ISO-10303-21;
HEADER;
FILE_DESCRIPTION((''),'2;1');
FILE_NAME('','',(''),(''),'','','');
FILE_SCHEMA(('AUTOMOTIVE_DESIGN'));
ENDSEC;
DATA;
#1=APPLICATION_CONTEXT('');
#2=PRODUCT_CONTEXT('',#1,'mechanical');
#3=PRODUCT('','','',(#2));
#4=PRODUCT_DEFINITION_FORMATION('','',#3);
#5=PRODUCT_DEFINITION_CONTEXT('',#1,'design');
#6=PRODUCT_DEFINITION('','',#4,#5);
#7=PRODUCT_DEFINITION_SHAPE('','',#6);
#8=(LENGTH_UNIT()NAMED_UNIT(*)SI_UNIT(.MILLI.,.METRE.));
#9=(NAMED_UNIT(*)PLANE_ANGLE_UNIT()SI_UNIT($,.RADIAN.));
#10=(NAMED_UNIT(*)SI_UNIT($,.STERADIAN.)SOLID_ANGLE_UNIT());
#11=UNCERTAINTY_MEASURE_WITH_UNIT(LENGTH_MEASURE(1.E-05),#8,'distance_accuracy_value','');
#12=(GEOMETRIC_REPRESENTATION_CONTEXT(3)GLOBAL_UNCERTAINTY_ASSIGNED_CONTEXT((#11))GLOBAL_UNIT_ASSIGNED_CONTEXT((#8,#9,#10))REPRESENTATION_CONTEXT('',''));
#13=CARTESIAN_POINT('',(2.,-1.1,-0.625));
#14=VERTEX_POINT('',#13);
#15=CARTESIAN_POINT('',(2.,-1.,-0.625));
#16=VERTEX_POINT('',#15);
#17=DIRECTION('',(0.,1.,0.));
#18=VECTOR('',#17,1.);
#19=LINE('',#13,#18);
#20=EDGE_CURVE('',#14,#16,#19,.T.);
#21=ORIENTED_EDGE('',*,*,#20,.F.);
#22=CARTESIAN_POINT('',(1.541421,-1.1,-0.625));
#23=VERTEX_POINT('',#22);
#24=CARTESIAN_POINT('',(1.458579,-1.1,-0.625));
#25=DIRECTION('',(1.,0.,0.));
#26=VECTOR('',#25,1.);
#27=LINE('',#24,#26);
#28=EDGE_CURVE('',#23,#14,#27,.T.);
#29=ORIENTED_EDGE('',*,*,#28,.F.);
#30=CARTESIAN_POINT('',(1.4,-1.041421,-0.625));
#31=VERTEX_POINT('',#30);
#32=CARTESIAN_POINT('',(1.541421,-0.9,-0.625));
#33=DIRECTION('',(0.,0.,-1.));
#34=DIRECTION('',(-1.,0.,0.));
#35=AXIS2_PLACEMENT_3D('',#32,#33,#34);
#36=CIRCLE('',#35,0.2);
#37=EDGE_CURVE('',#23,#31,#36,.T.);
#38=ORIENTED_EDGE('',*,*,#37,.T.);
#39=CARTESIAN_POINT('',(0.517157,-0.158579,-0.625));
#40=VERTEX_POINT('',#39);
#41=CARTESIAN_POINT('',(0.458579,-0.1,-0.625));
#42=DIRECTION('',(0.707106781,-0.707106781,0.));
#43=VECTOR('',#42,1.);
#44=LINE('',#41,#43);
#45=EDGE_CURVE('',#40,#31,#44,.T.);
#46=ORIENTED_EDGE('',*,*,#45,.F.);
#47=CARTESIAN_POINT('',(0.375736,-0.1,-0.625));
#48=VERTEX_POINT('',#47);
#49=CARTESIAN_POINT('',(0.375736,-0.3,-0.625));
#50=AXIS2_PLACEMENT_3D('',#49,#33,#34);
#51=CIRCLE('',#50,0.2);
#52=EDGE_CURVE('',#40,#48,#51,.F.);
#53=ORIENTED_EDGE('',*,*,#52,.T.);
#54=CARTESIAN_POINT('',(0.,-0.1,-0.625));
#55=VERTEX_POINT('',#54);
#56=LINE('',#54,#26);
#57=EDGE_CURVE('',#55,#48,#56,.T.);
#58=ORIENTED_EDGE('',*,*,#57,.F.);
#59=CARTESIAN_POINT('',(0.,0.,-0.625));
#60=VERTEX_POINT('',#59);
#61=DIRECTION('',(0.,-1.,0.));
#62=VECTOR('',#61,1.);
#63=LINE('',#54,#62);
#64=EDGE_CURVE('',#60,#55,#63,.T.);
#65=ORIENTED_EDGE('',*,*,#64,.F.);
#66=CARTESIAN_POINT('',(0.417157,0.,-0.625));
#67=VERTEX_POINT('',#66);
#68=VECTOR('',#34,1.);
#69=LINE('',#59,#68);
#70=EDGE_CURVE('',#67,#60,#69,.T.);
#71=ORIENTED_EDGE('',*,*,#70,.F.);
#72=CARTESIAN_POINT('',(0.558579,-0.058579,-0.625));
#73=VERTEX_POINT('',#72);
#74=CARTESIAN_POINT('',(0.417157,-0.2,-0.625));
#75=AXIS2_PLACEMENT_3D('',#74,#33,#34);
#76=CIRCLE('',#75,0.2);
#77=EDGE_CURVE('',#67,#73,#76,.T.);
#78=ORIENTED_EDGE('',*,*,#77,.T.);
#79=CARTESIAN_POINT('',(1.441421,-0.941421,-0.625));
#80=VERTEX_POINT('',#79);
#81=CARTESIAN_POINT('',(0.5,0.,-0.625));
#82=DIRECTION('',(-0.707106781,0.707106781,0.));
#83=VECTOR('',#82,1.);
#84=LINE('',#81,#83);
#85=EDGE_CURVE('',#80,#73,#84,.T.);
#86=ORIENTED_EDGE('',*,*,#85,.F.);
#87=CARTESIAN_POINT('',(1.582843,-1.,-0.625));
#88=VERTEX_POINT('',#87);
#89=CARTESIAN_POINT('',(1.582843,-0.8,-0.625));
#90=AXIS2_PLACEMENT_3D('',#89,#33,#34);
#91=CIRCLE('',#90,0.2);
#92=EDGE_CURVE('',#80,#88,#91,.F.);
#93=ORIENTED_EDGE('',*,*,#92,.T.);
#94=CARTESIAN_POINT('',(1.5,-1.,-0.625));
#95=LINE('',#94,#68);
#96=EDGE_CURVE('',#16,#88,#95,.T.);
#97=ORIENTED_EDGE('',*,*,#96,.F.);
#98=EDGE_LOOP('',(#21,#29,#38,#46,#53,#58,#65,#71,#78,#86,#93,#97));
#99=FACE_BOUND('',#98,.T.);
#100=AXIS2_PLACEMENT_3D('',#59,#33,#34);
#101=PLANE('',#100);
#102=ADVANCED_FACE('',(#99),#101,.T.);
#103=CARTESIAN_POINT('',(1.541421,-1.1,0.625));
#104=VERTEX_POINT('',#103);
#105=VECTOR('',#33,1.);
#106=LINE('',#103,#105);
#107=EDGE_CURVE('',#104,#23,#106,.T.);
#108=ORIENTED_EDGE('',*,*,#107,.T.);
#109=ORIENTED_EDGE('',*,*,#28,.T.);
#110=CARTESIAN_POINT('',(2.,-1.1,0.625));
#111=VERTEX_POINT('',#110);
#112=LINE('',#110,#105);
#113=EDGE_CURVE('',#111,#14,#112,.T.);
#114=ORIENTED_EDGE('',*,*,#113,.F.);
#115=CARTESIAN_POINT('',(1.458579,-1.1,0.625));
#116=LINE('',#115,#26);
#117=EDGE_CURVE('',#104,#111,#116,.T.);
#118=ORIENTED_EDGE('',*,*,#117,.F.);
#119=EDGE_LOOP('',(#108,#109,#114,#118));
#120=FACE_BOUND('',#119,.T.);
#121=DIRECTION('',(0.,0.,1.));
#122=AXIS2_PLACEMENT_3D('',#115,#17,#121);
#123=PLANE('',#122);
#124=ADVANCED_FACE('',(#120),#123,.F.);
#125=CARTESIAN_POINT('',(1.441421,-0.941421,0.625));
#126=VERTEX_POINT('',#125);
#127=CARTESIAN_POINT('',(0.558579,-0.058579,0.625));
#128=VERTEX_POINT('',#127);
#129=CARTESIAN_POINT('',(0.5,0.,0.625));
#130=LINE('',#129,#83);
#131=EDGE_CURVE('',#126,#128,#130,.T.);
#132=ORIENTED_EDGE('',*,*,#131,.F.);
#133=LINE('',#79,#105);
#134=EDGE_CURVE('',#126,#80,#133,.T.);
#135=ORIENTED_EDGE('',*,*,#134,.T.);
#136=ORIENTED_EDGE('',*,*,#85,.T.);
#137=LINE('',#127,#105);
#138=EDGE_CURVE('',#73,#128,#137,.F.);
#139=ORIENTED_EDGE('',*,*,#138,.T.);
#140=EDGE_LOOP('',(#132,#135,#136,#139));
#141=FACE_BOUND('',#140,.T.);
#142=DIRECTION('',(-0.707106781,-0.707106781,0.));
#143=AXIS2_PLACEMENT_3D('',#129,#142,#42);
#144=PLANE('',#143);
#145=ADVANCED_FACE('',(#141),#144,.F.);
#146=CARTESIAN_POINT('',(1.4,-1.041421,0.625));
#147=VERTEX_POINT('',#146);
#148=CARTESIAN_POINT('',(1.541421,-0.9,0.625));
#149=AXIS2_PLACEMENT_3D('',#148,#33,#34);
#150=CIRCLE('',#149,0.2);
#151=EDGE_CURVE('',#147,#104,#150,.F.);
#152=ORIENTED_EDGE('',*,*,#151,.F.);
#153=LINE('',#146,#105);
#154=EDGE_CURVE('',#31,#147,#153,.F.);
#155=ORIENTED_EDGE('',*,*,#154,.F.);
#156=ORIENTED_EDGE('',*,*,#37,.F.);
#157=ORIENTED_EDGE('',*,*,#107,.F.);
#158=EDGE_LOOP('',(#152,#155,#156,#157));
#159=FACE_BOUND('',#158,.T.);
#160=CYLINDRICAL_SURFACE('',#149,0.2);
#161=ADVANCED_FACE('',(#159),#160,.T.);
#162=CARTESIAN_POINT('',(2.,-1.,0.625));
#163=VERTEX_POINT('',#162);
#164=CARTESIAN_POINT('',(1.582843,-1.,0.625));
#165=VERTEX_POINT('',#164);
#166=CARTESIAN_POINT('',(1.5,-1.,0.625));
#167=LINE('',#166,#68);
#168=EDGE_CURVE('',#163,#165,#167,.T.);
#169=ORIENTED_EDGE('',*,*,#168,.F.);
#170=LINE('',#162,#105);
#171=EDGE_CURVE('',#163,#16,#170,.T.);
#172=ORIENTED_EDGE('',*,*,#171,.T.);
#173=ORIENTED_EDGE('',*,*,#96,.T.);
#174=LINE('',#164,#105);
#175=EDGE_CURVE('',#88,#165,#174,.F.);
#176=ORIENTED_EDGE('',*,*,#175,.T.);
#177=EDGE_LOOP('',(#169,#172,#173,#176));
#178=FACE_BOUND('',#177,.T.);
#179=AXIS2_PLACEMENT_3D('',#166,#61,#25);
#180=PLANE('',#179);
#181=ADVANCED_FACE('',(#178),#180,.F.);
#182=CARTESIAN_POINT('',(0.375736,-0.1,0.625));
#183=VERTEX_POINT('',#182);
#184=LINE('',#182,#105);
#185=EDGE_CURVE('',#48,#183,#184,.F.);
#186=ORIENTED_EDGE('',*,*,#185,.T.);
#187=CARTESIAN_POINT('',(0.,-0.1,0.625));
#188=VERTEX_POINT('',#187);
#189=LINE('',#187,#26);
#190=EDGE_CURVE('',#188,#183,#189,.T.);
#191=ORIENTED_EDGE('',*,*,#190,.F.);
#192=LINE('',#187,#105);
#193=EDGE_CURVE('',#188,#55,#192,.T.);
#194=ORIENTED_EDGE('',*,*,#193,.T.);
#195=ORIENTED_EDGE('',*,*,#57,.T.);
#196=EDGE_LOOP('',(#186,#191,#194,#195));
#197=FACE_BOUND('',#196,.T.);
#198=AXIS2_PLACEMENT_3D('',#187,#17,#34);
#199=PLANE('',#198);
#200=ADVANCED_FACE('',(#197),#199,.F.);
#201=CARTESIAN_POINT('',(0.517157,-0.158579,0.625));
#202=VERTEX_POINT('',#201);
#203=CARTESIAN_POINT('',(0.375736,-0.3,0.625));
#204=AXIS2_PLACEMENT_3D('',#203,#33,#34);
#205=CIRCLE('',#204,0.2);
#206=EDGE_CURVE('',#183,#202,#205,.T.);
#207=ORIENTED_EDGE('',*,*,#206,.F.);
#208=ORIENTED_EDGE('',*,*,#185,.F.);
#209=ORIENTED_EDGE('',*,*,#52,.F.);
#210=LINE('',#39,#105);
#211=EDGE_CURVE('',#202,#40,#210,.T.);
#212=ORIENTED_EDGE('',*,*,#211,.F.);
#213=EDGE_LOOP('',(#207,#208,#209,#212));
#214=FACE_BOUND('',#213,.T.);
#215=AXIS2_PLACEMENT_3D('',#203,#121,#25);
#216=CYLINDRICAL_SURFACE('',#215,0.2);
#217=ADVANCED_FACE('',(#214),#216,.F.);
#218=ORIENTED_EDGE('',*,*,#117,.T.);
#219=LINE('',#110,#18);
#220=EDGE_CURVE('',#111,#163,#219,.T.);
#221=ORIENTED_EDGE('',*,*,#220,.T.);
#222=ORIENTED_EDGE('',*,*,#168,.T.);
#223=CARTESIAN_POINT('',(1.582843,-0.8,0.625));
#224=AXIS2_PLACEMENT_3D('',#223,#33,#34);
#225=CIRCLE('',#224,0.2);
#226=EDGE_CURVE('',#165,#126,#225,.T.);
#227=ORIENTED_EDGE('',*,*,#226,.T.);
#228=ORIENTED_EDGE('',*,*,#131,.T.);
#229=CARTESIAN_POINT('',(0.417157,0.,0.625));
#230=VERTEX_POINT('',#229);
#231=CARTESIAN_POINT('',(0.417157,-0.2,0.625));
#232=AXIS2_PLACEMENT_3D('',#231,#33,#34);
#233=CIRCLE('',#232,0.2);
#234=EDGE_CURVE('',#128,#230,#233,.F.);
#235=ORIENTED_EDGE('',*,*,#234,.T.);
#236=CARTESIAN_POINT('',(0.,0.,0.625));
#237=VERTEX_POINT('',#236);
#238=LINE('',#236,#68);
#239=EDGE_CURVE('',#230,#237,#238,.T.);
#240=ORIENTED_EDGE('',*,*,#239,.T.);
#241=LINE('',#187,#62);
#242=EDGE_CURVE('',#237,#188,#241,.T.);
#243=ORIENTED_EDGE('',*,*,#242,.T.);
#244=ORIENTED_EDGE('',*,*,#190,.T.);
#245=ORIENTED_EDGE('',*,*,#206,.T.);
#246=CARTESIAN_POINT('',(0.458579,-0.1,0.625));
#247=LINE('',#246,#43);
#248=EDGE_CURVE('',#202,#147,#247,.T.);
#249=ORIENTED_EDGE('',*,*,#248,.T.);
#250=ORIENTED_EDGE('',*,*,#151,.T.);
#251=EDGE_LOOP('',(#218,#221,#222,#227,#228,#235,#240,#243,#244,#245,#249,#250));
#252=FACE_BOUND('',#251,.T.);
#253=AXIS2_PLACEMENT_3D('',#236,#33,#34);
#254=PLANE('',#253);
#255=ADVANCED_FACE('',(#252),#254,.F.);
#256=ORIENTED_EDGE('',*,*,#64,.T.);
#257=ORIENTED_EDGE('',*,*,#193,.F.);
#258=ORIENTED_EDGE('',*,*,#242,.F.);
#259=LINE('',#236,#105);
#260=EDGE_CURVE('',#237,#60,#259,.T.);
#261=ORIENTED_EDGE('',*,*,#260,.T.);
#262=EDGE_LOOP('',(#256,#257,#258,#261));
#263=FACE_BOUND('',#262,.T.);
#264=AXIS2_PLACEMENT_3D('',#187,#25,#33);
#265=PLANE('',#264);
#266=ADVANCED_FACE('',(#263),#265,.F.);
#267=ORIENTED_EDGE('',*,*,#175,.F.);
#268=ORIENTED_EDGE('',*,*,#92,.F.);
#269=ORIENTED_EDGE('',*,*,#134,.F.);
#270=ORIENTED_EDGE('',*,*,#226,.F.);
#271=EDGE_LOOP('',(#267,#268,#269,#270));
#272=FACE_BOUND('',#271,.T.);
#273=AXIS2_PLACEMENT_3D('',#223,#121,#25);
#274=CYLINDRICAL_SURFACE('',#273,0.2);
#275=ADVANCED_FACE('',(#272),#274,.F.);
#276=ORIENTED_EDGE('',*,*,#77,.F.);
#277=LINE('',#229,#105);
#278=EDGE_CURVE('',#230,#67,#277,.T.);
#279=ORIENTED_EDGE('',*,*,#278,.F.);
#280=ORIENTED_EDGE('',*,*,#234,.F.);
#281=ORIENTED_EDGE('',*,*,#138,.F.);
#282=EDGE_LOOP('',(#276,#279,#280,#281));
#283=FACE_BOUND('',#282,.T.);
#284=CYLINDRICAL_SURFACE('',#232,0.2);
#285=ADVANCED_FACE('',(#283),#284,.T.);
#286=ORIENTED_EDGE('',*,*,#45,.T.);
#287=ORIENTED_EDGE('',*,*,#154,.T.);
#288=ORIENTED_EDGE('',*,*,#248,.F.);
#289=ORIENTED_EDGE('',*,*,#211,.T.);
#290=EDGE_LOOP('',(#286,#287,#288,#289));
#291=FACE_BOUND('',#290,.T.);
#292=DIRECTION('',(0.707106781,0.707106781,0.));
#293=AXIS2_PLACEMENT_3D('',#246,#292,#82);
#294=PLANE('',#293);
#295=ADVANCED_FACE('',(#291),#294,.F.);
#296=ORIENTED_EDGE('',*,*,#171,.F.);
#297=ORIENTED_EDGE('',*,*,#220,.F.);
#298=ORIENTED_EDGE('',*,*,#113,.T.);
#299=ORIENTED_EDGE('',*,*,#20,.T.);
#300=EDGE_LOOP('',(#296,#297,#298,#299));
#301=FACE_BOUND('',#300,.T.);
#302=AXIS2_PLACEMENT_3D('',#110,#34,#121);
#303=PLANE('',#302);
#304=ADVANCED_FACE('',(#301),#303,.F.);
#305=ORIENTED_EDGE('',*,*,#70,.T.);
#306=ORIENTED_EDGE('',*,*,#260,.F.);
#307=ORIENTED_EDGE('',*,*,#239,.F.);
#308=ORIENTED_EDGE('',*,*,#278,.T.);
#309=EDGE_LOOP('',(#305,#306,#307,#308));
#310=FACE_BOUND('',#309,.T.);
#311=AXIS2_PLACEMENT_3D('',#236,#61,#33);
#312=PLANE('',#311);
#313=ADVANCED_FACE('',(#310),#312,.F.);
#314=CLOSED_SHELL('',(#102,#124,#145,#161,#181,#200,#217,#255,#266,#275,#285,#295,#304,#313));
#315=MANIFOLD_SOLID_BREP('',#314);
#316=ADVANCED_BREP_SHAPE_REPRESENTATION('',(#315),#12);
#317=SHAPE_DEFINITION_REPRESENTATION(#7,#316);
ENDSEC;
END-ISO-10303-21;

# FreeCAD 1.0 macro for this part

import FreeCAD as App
import Part
import Sketcher
from FreeCAD import Vector
Q = App.Units.Quantity


def edges_at(feature, points):
    """Names of the edges that pass closest to the given points."""
    edges = feature.Shape.Edges
    near = lambda p: min(range(len(edges)), key=lambda i: edges[i].distToShape(Part.Vertex(*p))[0])
    return sorted({f"Edge{near(p) + 1}" for p in points})


def add_polygon(sketch, points):
    """Adds a closed chain of lines whose ends are joined by coincident constraints."""
    first, n = sketch.GeometryCount, len(points)
    for a, b in zip(points, points[1:] + points[:1]):
        sketch.addGeometry(Part.LineSegment(App.Vector(*a, 0), App.Vector(*b, 0)), False)
    for i in range(n):
        sketch.addConstraint(Sketcher.Constraint("Coincident", first + i, 2, first + (i + 1) % n, 1))

doc = App.newDocument("Part")
params = doc.addObject("Spreadsheet::Sheet", "Params")
for row, (alias, value) in enumerate([
    ("sketch1_width", "0.5 mm"),
    ("sketch1_height", "0.1 mm"),
    ("pad1_length", "1.25 mm"),
    ("fillet_radius", "0.2 mm"),
], start=1):
    params.set(f"A{row}", alias)
    params.set(f"B{row}", "=" + value)
    params.setAlias(f"B{row}", alias)

body = doc.addObject("PartDesign::Body", "Body")

sketch1 = body.newObject("Sketcher::SketchObject", "Sketch")
sketch1.AttachmentSupport = (doc.getObject("XY_Plane"), [""])
sketch1.MapMode = "FlatFace"
add_polygon(sketch1, [(0.5, 0), (0, 0), (0, -0.1), (0.458579, -0.1), (1.458579, -1.1), (2, -1.1), (2, -1), (1.5, -1)])
sketch1.addConstraint([
    Sketcher.Constraint("Horizontal", 0),
    Sketcher.Constraint("Vertical", 1),
    Sketcher.Constraint("Horizontal", 2),
    Sketcher.Constraint("Horizontal", 4),
    Sketcher.Constraint("Vertical", 5),
    Sketcher.Constraint("Horizontal", 6),
    Sketcher.Constraint("Coincident", 0, 2, -1, 1),
    Sketcher.Constraint("Parallel", 3, 7),
    Sketcher.Constraint("Equal", 0, 6),
    Sketcher.Constraint("Equal", 1, 5),
    Sketcher.Constraint("Angle", 3, Q("-45 deg")),
    Sketcher.Constraint("DistanceX", 0, 2, 0, 1, 0.5),
    Sketcher.Constraint("DistanceY", 1, 2, 1, 1, 0.1),
    Sketcher.Constraint("DistanceX", -1, 1, 4, 2, 2.0),
    Sketcher.Constraint("DistanceX", 2, 1, 2, 2, 0.458579),
])
sketch1.setExpression("Constraints[19]", "Params.sketch1_width")
sketch1.setExpression("Constraints[20]", "Params.sketch1_height")
pad1 = body.newObject("PartDesign::Pad", "Pad")
pad1.Profile = sketch1
pad1.setExpression("Length", "Params.pad1_length")
pad1.Midplane = True
doc.recompute()

fillet = body.newObject("PartDesign::Fillet", "Fillet")
fillet.Base = (pad1, edges_at(pad1, [
    (0.5, 0, 0),
    (1.5, -1, 0),
    (1.459, -1.1, 0),
    (0.459, -0.1, 0),
]))
fillet.setExpression("Radius", "Params.fillet_radius")

doc.recompute()
